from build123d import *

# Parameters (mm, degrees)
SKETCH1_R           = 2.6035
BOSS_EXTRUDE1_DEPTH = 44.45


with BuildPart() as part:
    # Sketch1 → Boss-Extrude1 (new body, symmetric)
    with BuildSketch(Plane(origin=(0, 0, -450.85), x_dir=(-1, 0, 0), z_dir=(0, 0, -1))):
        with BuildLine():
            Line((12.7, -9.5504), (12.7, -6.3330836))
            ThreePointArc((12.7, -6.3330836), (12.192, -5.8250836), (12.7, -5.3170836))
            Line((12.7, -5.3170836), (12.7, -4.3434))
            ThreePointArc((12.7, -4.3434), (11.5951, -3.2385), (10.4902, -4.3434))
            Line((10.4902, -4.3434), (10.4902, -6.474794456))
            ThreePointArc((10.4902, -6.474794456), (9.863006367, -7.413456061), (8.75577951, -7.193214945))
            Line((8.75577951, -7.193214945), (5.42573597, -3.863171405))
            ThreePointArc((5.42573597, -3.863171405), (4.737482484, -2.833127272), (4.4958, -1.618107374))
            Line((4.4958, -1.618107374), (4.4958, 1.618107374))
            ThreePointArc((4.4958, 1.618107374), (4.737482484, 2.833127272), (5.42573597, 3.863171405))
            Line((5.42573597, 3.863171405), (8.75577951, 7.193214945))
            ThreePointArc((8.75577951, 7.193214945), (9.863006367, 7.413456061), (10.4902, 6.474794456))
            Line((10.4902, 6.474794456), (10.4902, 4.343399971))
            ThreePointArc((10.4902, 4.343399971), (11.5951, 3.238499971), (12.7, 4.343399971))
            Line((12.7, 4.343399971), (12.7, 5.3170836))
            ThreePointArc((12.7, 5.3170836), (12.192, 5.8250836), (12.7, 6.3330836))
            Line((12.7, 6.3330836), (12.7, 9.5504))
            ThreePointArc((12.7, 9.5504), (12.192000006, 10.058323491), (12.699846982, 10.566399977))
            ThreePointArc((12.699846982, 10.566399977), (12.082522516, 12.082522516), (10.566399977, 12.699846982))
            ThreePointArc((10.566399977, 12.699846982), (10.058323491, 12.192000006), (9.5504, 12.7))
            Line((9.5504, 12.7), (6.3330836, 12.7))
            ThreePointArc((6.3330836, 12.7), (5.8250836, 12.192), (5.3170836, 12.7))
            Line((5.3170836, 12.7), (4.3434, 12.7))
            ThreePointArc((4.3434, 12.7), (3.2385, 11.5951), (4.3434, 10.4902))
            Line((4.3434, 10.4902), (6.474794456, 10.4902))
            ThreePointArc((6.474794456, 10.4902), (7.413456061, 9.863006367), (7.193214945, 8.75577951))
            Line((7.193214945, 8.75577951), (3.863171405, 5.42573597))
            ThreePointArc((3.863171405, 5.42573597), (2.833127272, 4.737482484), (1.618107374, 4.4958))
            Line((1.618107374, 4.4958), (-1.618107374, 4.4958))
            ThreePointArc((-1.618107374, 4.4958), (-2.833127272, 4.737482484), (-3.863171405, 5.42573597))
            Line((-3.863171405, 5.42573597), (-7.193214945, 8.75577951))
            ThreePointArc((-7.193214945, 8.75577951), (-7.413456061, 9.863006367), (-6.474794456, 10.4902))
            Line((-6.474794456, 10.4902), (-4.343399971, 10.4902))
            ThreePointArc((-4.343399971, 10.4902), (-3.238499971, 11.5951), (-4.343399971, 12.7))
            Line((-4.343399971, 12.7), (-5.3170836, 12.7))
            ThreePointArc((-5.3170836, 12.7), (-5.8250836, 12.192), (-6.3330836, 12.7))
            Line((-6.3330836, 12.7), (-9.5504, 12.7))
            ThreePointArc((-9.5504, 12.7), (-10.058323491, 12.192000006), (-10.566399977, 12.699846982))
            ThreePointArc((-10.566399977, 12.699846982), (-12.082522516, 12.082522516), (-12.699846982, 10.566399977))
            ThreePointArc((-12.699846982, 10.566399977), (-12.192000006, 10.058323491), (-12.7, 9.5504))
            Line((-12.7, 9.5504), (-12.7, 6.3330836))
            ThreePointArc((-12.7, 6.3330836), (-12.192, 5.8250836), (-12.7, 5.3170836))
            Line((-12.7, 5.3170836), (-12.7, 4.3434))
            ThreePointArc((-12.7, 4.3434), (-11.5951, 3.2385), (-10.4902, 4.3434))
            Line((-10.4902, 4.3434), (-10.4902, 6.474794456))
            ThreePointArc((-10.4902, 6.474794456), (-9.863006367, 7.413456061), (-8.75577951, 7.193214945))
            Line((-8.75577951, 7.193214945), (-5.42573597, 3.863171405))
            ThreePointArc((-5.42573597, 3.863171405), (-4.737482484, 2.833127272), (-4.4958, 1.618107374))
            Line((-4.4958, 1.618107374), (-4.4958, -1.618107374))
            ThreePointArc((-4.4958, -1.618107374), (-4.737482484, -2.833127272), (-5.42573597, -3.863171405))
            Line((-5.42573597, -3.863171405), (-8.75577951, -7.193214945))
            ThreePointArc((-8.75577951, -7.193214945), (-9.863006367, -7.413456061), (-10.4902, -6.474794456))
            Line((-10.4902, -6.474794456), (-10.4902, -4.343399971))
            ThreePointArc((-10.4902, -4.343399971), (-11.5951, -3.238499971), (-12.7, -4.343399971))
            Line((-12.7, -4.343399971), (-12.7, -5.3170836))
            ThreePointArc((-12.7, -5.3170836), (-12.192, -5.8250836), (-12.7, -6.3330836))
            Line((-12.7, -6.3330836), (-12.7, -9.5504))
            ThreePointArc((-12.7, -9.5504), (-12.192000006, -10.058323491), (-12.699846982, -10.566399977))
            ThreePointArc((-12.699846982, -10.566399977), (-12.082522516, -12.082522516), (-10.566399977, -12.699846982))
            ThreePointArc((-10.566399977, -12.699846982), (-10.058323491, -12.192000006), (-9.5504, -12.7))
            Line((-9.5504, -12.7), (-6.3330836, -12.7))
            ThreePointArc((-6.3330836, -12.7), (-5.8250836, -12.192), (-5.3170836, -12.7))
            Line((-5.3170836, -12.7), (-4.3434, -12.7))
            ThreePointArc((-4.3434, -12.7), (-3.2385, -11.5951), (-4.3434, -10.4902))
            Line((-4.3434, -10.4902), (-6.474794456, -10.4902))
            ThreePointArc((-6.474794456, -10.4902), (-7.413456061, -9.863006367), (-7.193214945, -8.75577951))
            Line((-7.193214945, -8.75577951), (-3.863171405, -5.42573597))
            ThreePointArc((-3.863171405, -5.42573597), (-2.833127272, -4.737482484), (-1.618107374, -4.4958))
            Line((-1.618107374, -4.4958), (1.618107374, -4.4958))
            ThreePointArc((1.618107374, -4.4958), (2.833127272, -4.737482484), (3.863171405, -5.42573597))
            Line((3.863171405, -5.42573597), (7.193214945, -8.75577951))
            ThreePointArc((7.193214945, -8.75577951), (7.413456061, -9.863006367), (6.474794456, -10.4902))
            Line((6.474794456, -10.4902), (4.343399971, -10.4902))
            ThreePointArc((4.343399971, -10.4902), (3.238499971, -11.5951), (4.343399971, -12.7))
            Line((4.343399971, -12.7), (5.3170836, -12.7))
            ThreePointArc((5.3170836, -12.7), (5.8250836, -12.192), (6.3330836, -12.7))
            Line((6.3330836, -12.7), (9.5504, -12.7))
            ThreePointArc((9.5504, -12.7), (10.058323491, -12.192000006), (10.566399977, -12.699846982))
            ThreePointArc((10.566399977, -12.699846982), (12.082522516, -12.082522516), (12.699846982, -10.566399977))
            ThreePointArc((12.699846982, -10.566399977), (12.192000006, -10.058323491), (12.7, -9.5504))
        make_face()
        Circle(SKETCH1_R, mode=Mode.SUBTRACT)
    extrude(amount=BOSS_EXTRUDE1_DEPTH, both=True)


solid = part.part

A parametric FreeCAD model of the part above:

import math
import FreeCAD as App
import Part
import Sketcher
Q = App.Units.Quantity

doc = App.newDocument("Part")
params = doc.addObject("Spreadsheet::Sheet", "Params")
for row, (alias, value) in enumerate([
    ("sketch1_radius", "0.02 in"),
    ("sketch1_radius2", "0.04 in"),
    ("sketch1_diameter", "0.205 in"),
    ("sketch1_radius3", "0.125 in"),
    ("sketch1_radius4", "0.083 in"),
    ("pad1_length", "3.5 in"),
], start=1):
    params.set(f"A{row}", alias)
    params.set(f"B{row}", "=" + value)
    params.setAlias(f"B{row}", alias)

body = doc.addObject("PartDesign::Body", "Body")

sketch1 = body.newObject("Sketcher::SketchObject", "Sketch")
sketch1.AttachmentSupport = (doc.getObject("XY_Plane"), [""])
sketch1.MapMode = "FlatFace"
sketch1.AttachmentOffset = App.Placement(App.Vector(0, 0, -17.75 * 25.4), App.Rotation())
sketch1.addGeometry(Part.LineSegment(App.Vector(-12.7, -9.5504, 0), App.Vector(-12.7, -6.333084, 0)), False)
sketch1.addGeometry(Part.ArcOfCircle(Part.Circle(App.Vector(-12.7, -5.825084, 0), App.Vector(0, 0, 1), 0.508), math.radians(-90), math.radians(90)), False)
sketch1.addGeometry(Part.LineSegment(App.Vector(-12.7, -5.317084, 0), App.Vector(-12.7, -4.3434, 0)), False)
sketch1.addGeometry(Part.ArcOfCircle(Part.Circle(App.Vector(-11.5951, -4.3434, 0), App.Vector(0, 0, 1), 1.1049), math.radians(0), math.radians(180)), False)
sketch1.addGeometry(Part.LineSegment(App.Vector(-10.4902, -4.3434, 0), App.Vector(-10.4902, -6.474794, 0)), False)
sketch1.addGeometry(Part.ArcOfCircle(Part.Circle(App.Vector(-9.4742, -6.474794, 0), App.Vector(0, 0, 1), 1.016), math.radians(180), math.radians(315)), False)
sketch1.addGeometry(Part.LineSegment(App.Vector(-8.75578, -7.193215, 0), App.Vector(-5.425736, -3.863171, 0)), False)
sketch1.addGeometry(Part.ArcOfCircle(Part.Circle(App.Vector(-7.6708, -1.618107, 0), App.Vector(0, 0, 1), 3.175), math.radians(-45), math.radians(0)), False)
sketch1.addGeometry(Part.LineSegment(App.Vector(-4.4958, -1.618107, 0), App.Vector(-4.4958, 1.618107, 0)), False)
sketch1.addGeometry(Part.ArcOfCircle(Part.Circle(App.Vector(-7.6708, 1.618107, 0), App.Vector(0, 0, 1), 3.175), math.radians(0), math.radians(45)), False)
sketch1.addGeometry(Part.LineSegment(App.Vector(-5.425736, 3.863171, 0), App.Vector(-8.75578, 7.193215, 0)), False)
sketch1.addGeometry(Part.ArcOfCircle(Part.Circle(App.Vector(-9.4742, 6.474794, 0), App.Vector(0, 0, 1), 1.016), math.radians(45), math.radians(180)), False)
sketch1.addGeometry(Part.LineSegment(App.Vector(-10.4902, 6.474794, 0), App.Vector(-10.4902, 4.3434, 0)), False)
sketch1.addGeometry(Part.ArcOfCircle(Part.Circle(App.Vector(-11.5951, 4.3434, 0), App.Vector(0, 0, 1), 1.1049), math.radians(180), math.radians(360)), False)
sketch1.addGeometry(Part.LineSegment(App.Vector(-12.7, 4.3434, 0), App.Vector(-12.7, 5.317084, 0)), False)
sketch1.addGeometry(Part.ArcOfCircle(Part.Circle(App.Vector(-12.7, 5.825084, 0), App.Vector(0, 0, 1), 0.508), math.radians(-90), math.radians(90)), False)
sketch1.addGeometry(Part.LineSegment(App.Vector(-12.7, 6.333084, 0), App.Vector(-12.7, 9.5504, 0)), False)
sketch1.addGeometry(Part.ArcOfCircle(Part.Circle(App.Vector(-12.7, 10.0584, 0), App.Vector(0, 0, 1), 0.508), math.radians(-90), math.radians(89.982742)), False)
sketch1.addGeometry(Part.ArcOfCircle(Part.Circle(App.Vector(-10.5918, 10.5918, 0), App.Vector(0, 0, 1), 2.1082), math.radians(89.309672), math.radians(180.690328)), False)
sketch1.addGeometry(Part.ArcOfCircle(Part.Circle(App.Vector(-10.0584, 12.7, 0), App.Vector(0, 0, 1), 0.508), math.radians(-179.982742), math.radians(0)), False)
sketch1.addGeometry(Part.LineSegment(App.Vector(-9.5504, 12.7, 0), App.Vector(-6.333084, 12.7, 0)), False)
sketch1.addGeometry(Part.ArcOfCircle(Part.Circle(App.Vector(-5.825084, 12.7, 0), App.Vector(0, 0, 1), 0.508), math.radians(180), math.radians(360)), False)
sketch1.addGeometry(Part.LineSegment(App.Vector(-5.317084, 12.7, 0), App.Vector(-4.3434, 12.7, 0)), False)
sketch1.addGeometry(Part.ArcOfCircle(Part.Circle(App.Vector(-4.3434, 11.5951, 0), App.Vector(0, 0, 1), 1.1049), math.radians(-90), math.radians(90)), False)
sketch1.addGeometry(Part.LineSegment(App.Vector(-4.3434, 10.4902, 0), App.Vector(-6.474794, 10.4902, 0)), False)
sketch1.addGeometry(Part.ArcOfCircle(Part.Circle(App.Vector(-6.474794, 9.4742, 0), App.Vector(0, 0, 1), 1.016), math.radians(90), math.radians(225)), False)
sketch1.addGeometry(Part.LineSegment(App.Vector(-7.193215, 8.75578, 0), App.Vector(-3.863171, 5.425736, 0)), False)
sketch1.addGeometry(Part.ArcOfCircle(Part.Circle(App.Vector(-1.618107, 7.6708, 0), App.Vector(0, 0, 1), 3.175), math.radians(-135), math.radians(-90)), False)
sketch1.addGeometry(Part.LineSegment(App.Vector(-1.618107, 4.4958, 0), App.Vector(1.618107, 4.4958, 0)), False)
sketch1.addGeometry(Part.ArcOfCircle(Part.Circle(App.Vector(1.618107, 7.6708, 0), App.Vector(0, 0, 1), 3.175), math.radians(-90), math.radians(-45)), False)
sketch1.addGeometry(Part.LineSegment(App.Vector(3.863171, 5.425736, 0), App.Vector(7.193215, 8.75578, 0)), False)
sketch1.addGeometry(Part.ArcOfCircle(Part.Circle(App.Vector(6.474794, 9.4742, 0), App.Vector(0, 0, 1), 1.016), math.radians(-45), math.radians(90)), False)
sketch1.addGeometry(Part.LineSegment(App.Vector(6.474794, 10.4902, 0), App.Vector(4.3434, 10.4902, 0)), False)
sketch1.addGeometry(Part.ArcOfCircle(Part.Circle(App.Vector(4.3434, 11.5951, 0), App.Vector(0, 0, 1), 1.1049), math.radians(90), math.radians(270)), False)
sketch1.addGeometry(Part.LineSegment(App.Vector(4.3434, 12.7, 0), App.Vector(5.317084, 12.7, 0)), False)
sketch1.addGeometry(Part.ArcOfCircle(Part.Circle(App.Vector(5.825084, 12.7, 0), App.Vector(0, 0, 1), 0.508), math.radians(180), math.radians(360)), False)
sketch1.addGeometry(Part.LineSegment(App.Vector(6.333084, 12.7, 0), App.Vector(9.5504, 12.7, 0)), False)
sketch1.addGeometry(Part.ArcOfCircle(Part.Circle(App.Vector(10.0584, 12.7, 0), App.Vector(0, 0, 1), 0.508), math.radians(180), math.radians(359.982742)), False)
sketch1.addGeometry(Part.ArcOfCircle(Part.Circle(App.Vector(10.5918, 10.5918, 0), App.Vector(0, 0, 1), 2.1082), math.radians(-0.690328), math.radians(90.690328)), False)
sketch1.addGeometry(Part.ArcOfCircle(Part.Circle(App.Vector(12.7, 10.0584, 0), App.Vector(0, 0, 1), 0.508), math.radians(90.017258), math.radians(270)), False)
sketch1.addGeometry(Part.LineSegment(App.Vector(12.7, 9.5504, 0), App.Vector(12.7, 6.333084, 0)), False)
sketch1.addGeometry(Part.ArcOfCircle(Part.Circle(App.Vector(12.7, 5.825084, 0), App.Vector(0, 0, 1), 0.508), math.radians(90), math.radians(270)), False)
sketch1.addGeometry(Part.LineSegment(App.Vector(12.7, 5.317084, 0), App.Vector(12.7, 4.3434, 0)), False)
sketch1.addGeometry(Part.ArcOfCircle(Part.Circle(App.Vector(11.5951, 4.3434, 0), App.Vector(0, 0, 1), 1.1049), math.radians(180), math.radians(360)), False)
sketch1.addGeometry(Part.LineSegment(App.Vector(10.4902, 4.3434, 0), App.Vector(10.4902, 6.474794, 0)), False)
sketch1.addGeometry(Part.ArcOfCircle(Part.Circle(App.Vector(9.4742, 6.474794, 0), App.Vector(0, 0, 1), 1.016), math.radians(0), math.radians(135)), False)
sketch1.addGeometry(Part.LineSegment(App.Vector(8.75578, 7.193215, 0), App.Vector(5.425736, 3.863171, 0)), False)
sketch1.addGeometry(Part.ArcOfCircle(Part.Circle(App.Vector(7.6708, 1.618107, 0), App.Vector(0, 0, 1), 3.175), math.radians(135), math.radians(180)), False)
sketch1.addGeometry(Part.LineSegment(App.Vector(4.4958, 1.618107, 0), App.Vector(4.4958, -1.618107, 0)), False)
sketch1.addGeometry(Part.ArcOfCircle(Part.Circle(App.Vector(7.6708, -1.618107, 0), App.Vector(0, 0, 1), 3.175), math.radians(180), math.radians(225)), False)
sketch1.addGeometry(Part.LineSegment(App.Vector(5.425736, -3.863171, 0), App.Vector(8.75578, -7.193215, 0)), False)
sketch1.addGeometry(Part.ArcOfCircle(Part.Circle(App.Vector(9.4742, -6.474794, 0), App.Vector(0, 0, 1), 1.016), math.radians(-135), math.radians(0)), False)
sketch1.addGeometry(Part.LineSegment(App.Vector(10.4902, -6.474794, 0), App.Vector(10.4902, -4.3434, 0)), False)
sketch1.addGeometry(Part.ArcOfCircle(Part.Circle(App.Vector(11.5951, -4.3434, 0), App.Vector(0, 0, 1), 1.1049), math.radians(0), math.radians(180)), False)
sketch1.addGeometry(Part.LineSegment(App.Vector(12.7, -4.3434, 0), App.Vector(12.7, -5.317084, 0)), False)
sketch1.addGeometry(Part.ArcOfCircle(Part.Circle(App.Vector(12.7, -5.825084, 0), App.Vector(0, 0, 1), 0.508), math.radians(90), math.radians(270)), False)
sketch1.addGeometry(Part.LineSegment(App.Vector(12.7, -6.333084, 0), App.Vector(12.7, -9.5504, 0)), False)
sketch1.addGeometry(Part.ArcOfCircle(Part.Circle(App.Vector(12.7, -10.0584, 0), App.Vector(0, 0, 1), 0.508), math.radians(90), math.radians(269.982742)), False)
sketch1.addGeometry(Part.ArcOfCircle(Part.Circle(App.Vector(10.5918, -10.5918, 0), App.Vector(0, 0, 1), 2.1082), math.radians(-90.690328), math.radians(0.690328)), False)
sketch1.addGeometry(Part.ArcOfCircle(Part.Circle(App.Vector(10.0584, -12.7, 0), App.Vector(0, 0, 1), 0.508), math.radians(0.017258), math.radians(180)), False)
sketch1.addGeometry(Part.LineSegment(App.Vector(9.5504, -12.7, 0), App.Vector(6.333084, -12.7, 0)), False)
sketch1.addGeometry(Part.ArcOfCircle(Part.Circle(App.Vector(5.825084, -12.7, 0), App.Vector(0, 0, 1), 0.508), math.radians(0), math.radians(180)), False)
sketch1.addGeometry(Part.LineSegment(App.Vector(5.317084, -12.7, 0), App.Vector(4.3434, -12.7, 0)), False)
sketch1.addGeometry(Part.ArcOfCircle(Part.Circle(App.Vector(4.3434, -11.5951, 0), App.Vector(0, 0, 1), 1.1049), math.radians(90), math.radians(270)), False)
sketch1.addGeometry(Part.LineSegment(App.Vector(4.3434, -10.4902, 0), App.Vector(6.474794, -10.4902, 0)), False)
sketch1.addGeometry(Part.ArcOfCircle(Part.Circle(App.Vector(6.474794, -9.4742, 0), App.Vector(0, 0, 1), 1.016), math.radians(-90), math.radians(45)), False)
sketch1.addGeometry(Part.LineSegment(App.Vector(7.193215, -8.75578, 0), App.Vector(3.863171, -5.425736, 0)), False)
sketch1.addGeometry(Part.ArcOfCircle(Part.Circle(App.Vector(1.618107, -7.6708, 0), App.Vector(0, 0, 1), 3.175), math.radians(45), math.radians(90)), False)
sketch1.addGeometry(Part.LineSegment(App.Vector(1.618107, -4.4958, 0), App.Vector(-1.618107, -4.4958, 0)), False)
sketch1.addGeometry(Part.ArcOfCircle(Part.Circle(App.Vector(-1.618107, -7.6708, 0), App.Vector(0, 0, 1), 3.175), math.radians(90), math.radians(135)), False)
sketch1.addGeometry(Part.LineSegment(App.Vector(-3.863171, -5.425736, 0), App.Vector(-7.193215, -8.75578, 0)), False)
sketch1.addGeometry(Part.ArcOfCircle(Part.Circle(App.Vector(-6.474794, -9.4742, 0), App.Vector(0, 0, 1), 1.016), math.radians(135), math.radians(270)), False)
sketch1.addGeometry(Part.LineSegment(App.Vector(-6.474794, -10.4902, 0), App.Vector(-4.3434, -10.4902, 0)), False)
sketch1.addGeometry(Part.ArcOfCircle(Part.Circle(App.Vector(-4.3434, -11.5951, 0), App.Vector(0, 0, 1), 1.1049), math.radians(-90), math.radians(90)), False)
sketch1.addGeometry(Part.LineSegment(App.Vector(-4.3434, -12.7, 0), App.Vector(-5.317084, -12.7, 0)), False)
sketch1.addGeometry(Part.ArcOfCircle(Part.Circle(App.Vector(-5.825084, -12.7, 0), App.Vector(0, 0, 1), 0.508), math.radians(0), math.radians(180)), False)
sketch1.addGeometry(Part.LineSegment(App.Vector(-6.333084, -12.7, 0), App.Vector(-9.5504, -12.7, 0)), False)
sketch1.addGeometry(Part.ArcOfCircle(Part.Circle(App.Vector(-10.0584, -12.7, 0), App.Vector(0, 0, 1), 0.508), math.radians(0), math.radians(179.982742)), False)
sketch1.addGeometry(Part.ArcOfCircle(Part.Circle(App.Vector(-10.5918, -10.5918, 0), App.Vector(0, 0, 1), 2.1082), math.radians(179.309672), math.radians(270.690328)), False)
sketch1.addGeometry(Part.ArcOfCircle(Part.Circle(App.Vector(-12.7, -10.0584, 0), App.Vector(0, 0, 1), 0.508), math.radians(-89.982742), math.radians(90)), False)
sketch1.addGeometry(Part.Circle(App.Vector(0, 0, 0), App.Vector(0, 0, 1), 2.6035), False)
sketch1.addConstraint(Sketcher.Constraint("Coincident", 0, 2, 1, 1))
sketch1.addConstraint(Sketcher.Constraint("Coincident", 1, 2, 2, 1))
sketch1.addConstraint(Sketcher.Constraint("Tangent", 2, 2, 3, 2))
sketch1.addConstraint(Sketcher.Constraint("Tangent", 3, 1, 4, 1))
sketch1.addConstraint(Sketcher.Constraint("Tangent", 4, 2, 5, 1))
sketch1.addConstraint(Sketcher.Constraint("Tangent", 5, 2, 6, 1))
sketch1.addConstraint(Sketcher.Constraint("Tangent", 6, 2, 7, 1))
sketch1.addConstraint(Sketcher.Constraint("Tangent", 7, 2, 8, 1))
sketch1.addConstraint(Sketcher.Constraint("Tangent", 8, 2, 9, 1))
sketch1.addConstraint(Sketcher.Constraint("Tangent", 9, 2, 10, 1))
sketch1.addConstraint(Sketcher.Constraint("Tangent", 10, 2, 11, 1))
sketch1.addConstraint(Sketcher.Constraint("Tangent", 11, 2, 12, 1))
sketch1.addConstraint(Sketcher.Constraint("Tangent", 12, 2, 13, 2))
sketch1.addConstraint(Sketcher.Constraint("Tangent", 13, 1, 14, 1))
sketch1.addConstraint(Sketcher.Constraint("Coincident", 14, 2, 15, 1))
sketch1.addConstraint(Sketcher.Constraint("Coincident", 15, 2, 16, 1))
sketch1.addConstraint(Sketcher.Constraint("Coincident", 16, 2, 17, 1))
sketch1.addConstraint(Sketcher.Constraint("Coincident", 17, 2, 18, 2))
sketch1.addConstraint(Sketcher.Constraint("Coincident", 18, 1, 19, 1))
sketch1.addConstraint(Sketcher.Constraint("Coincident", 19, 2, 20, 1))
sketch1.addConstraint(Sketcher.Constraint("Coincident", 20, 2, 21, 1))
sketch1.addConstraint(Sketcher.Constraint("Coincident", 21, 2, 22, 1))
sketch1.addConstraint(Sketcher.Constraint("Tangent", 22, 2, 23, 2))
sketch1.addConstraint(Sketcher.Constraint("Tangent", 23, 1, 24, 1))
sketch1.addConstraint(Sketcher.Constraint("Tangent", 24, 2, 25, 1))
sketch1.addConstraint(Sketcher.Constraint("Tangent", 25, 2, 26, 1))
sketch1.addConstraint(Sketcher.Constraint("Tangent", 26, 2, 27, 1))
sketch1.addConstraint(Sketcher.Constraint("Tangent", 27, 2, 28, 1))
sketch1.addConstraint(Sketcher.Constraint("Tangent", 28, 2, 29, 1))
sketch1.addConstraint(Sketcher.Constraint("Tangent", 29, 2, 30, 1))
sketch1.addConstraint(Sketcher.Constraint("Tangent", 30, 2, 31, 1))
sketch1.addConstraint(Sketcher.Constraint("Tangent", 31, 2, 32, 1))
sketch1.addConstraint(Sketcher.Constraint("Tangent", 32, 2, 33, 2))
sketch1.addConstraint(Sketcher.Constraint("Tangent", 33, 1, 34, 1))
sketch1.addConstraint(Sketcher.Constraint("Coincident", 34, 2, 35, 1))
sketch1.addConstraint(Sketcher.Constraint("Coincident", 35, 2, 36, 1))
sketch1.addConstraint(Sketcher.Constraint("Coincident", 36, 2, 37, 1))
sketch1.addConstraint(Sketcher.Constraint("Coincident", 37, 2, 38, 2))
sketch1.addConstraint(Sketcher.Constraint("Coincident", 38, 1, 39, 1))
sketch1.addConstraint(Sketcher.Constraint("Coincident", 39, 2, 40, 1))
sketch1.addConstraint(Sketcher.Constraint("Coincident", 40, 2, 41, 1))
sketch1.addConstraint(Sketcher.Constraint("Coincident", 41, 2, 42, 1))
sketch1.addConstraint(Sketcher.Constraint("Tangent", 42, 2, 43, 2))
sketch1.addConstraint(Sketcher.Constraint("Tangent", 43, 1, 44, 1))
sketch1.addConstraint(Sketcher.Constraint("Tangent", 44, 2, 45, 1))
sketch1.addConstraint(Sketcher.Constraint("Tangent", 45, 2, 46, 1))
sketch1.addConstraint(Sketcher.Constraint("Tangent", 46, 2, 47, 1))
sketch1.addConstraint(Sketcher.Constraint("Tangent", 47, 2, 48, 1))
sketch1.addConstraint(Sketcher.Constraint("Tangent", 48, 2, 49, 1))
sketch1.addConstraint(Sketcher.Constraint("Tangent", 49, 2, 50, 1))
sketch1.addConstraint(Sketcher.Constraint("Tangent", 50, 2, 51, 1))
sketch1.addConstraint(Sketcher.Constraint("Tangent", 51, 2, 52, 1))
sketch1.addConstraint(Sketcher.Constraint("Tangent", 52, 2, 53, 2))
sketch1.addConstraint(Sketcher.Constraint("Tangent", 53, 1, 54, 1))
sketch1.addConstraint(Sketcher.Constraint("Coincident", 54, 2, 55, 1))
sketch1.addConstraint(Sketcher.Constraint("Coincident", 55, 2, 56, 1))
sketch1.addConstraint(Sketcher.Constraint("Coincident", 56, 2, 57, 1))
sketch1.addConstraint(Sketcher.Constraint("Coincident", 57, 2, 58, 2))
sketch1.addConstraint(Sketcher.Constraint("Coincident", 58, 1, 59, 1))
sketch1.addConstraint(Sketcher.Constraint("Coincident", 59, 2, 60, 1))
sketch1.addConstraint(Sketcher.Constraint("Coincident", 60, 2, 61, 1))
sketch1.addConstraint(Sketcher.Constraint("Coincident", 61, 2, 62, 1))
sketch1.addConstraint(Sketcher.Constraint("Tangent", 62, 2, 63, 2))
sketch1.addConstraint(Sketcher.Constraint("Tangent", 63, 1, 64, 1))
sketch1.addConstraint(Sketcher.Constraint("Tangent", 64, 2, 65, 1))
sketch1.addConstraint(Sketcher.Constraint("Tangent", 65, 2, 66, 1))
sketch1.addConstraint(Sketcher.Constraint("Tangent", 66, 2, 67, 1))
sketch1.addConstraint(Sketcher.Constraint("Tangent", 67, 2, 68, 1))
sketch1.addConstraint(Sketcher.Constraint("Tangent", 68, 2, 69, 1))
sketch1.addConstraint(Sketcher.Constraint("Tangent", 69, 2, 70, 1))
sketch1.addConstraint(Sketcher.Constraint("Tangent", 70, 2, 71, 1))
sketch1.addConstraint(Sketcher.Constraint("Tangent", 71, 2, 72, 1))
sketch1.addConstraint(Sketcher.Constraint("Tangent", 72, 2, 73, 2))
sketch1.addConstraint(Sketcher.Constraint("Tangent", 73, 1, 74, 1))
sketch1.addConstraint(Sketcher.Constraint("Coincident", 74, 2, 75, 1))
sketch1.addConstraint(Sketcher.Constraint("Coincident", 75, 2, 76, 1))
sketch1.addConstraint(Sketcher.Constraint("Coincident", 76, 2, 77, 1))
sketch1.addConstraint(Sketcher.Constraint("Coincident", 77, 2, 78, 2))
sketch1.addConstraint(Sketcher.Constraint("Coincident", 78, 1, 79, 1))
sketch1.addConstraint(Sketcher.Constraint("Coincident", 79, 2, 0, 1))
sketch1.addConstraint(Sketcher.Constraint("Vertical", 0))
sketch1.addConstraint(Sketcher.Constraint("Vertical", 2))
sketch1.addConstraint(Sketcher.Constraint("Vertical", 4))
sketch1.addConstraint(Sketcher.Constraint("Vertical", 8))
sketch1.addConstraint(Sketcher.Constraint("Vertical", 12))
sketch1.addConstraint(Sketcher.Constraint("Vertical", 14))
sketch1.addConstraint(Sketcher.Constraint("Vertical", 16))
sketch1.addConstraint(Sketcher.Constraint("Horizontal", 20))
sketch1.addConstraint(Sketcher.Constraint("Horizontal", 22))
sketch1.addConstraint(Sketcher.Constraint("Horizontal", 24))
sketch1.addConstraint(Sketcher.Constraint("Horizontal", 28))
sketch1.addConstraint(Sketcher.Constraint("Horizontal", 32))
sketch1.addConstraint(Sketcher.Constraint("Horizontal", 34))
sketch1.addConstraint(Sketcher.Constraint("Horizontal", 36))
sketch1.addConstraint(Sketcher.Constraint("Vertical", 40))
sketch1.addConstraint(Sketcher.Constraint("Vertical", 42))
sketch1.addConstraint(Sketcher.Constraint("Vertical", 44))
sketch1.addConstraint(Sketcher.Constraint("Vertical", 48))
sketch1.addConstraint(Sketcher.Constraint("Vertical", 52))
sketch1.addConstraint(Sketcher.Constraint("Vertical", 54))
sketch1.addConstraint(Sketcher.Constraint("Vertical", 56))
sketch1.addConstraint(Sketcher.Constraint("Horizontal", 60))
sketch1.addConstraint(Sketcher.Constraint("Horizontal", 62))
sketch1.addConstraint(Sketcher.Constraint("Horizontal", 64))
sketch1.addConstraint(Sketcher.Constraint("Horizontal", 68))
sketch1.addConstraint(Sketcher.Constraint("Horizontal", 72))
sketch1.addConstraint(Sketcher.Constraint("Horizontal", 74))
sketch1.addConstraint(Sketcher.Constraint("Horizontal", 76))
sketch1.addConstraint(Sketcher.Constraint("Coincident", 80, 3, -1, 1))
sketch1.addConstraint(Sketcher.Constraint("Equal", 7, 9))
sketch1.addConstraint(Sketcher.Constraint("Equal", 5, 11))
sketch1.addConstraint(Sketcher.Constraint("Equal", 3, 13))
sketch1.addConstraint(Sketcher.Constraint("Equal", 1, 15))
sketch1.addConstraint(Sketcher.Constraint("Equal", 15, 17))
sketch1.addConstraint(Sketcher.Constraint("Equal", 17, 19))
sketch1.addConstraint(Sketcher.Constraint("Equal", 19, 21))
sketch1.addConstraint(Sketcher.Constraint("Equal", 13, 23))
sketch1.addConstraint(Sketcher.Constraint("Equal", 11, 25))
sketch1.addConstraint(Sketcher.Constraint("Equal", 9, 27))
sketch1.addConstraint(Sketcher.Constraint("Equal", 27, 29))
sketch1.addConstraint(Sketcher.Constraint("Equal", 25, 31))
sketch1.addConstraint(Sketcher.Constraint("Equal", 23, 33))
sketch1.addConstraint(Sketcher.Constraint("Equal", 21, 35))
sketch1.addConstraint(Sketcher.Constraint("Equal", 35, 37))
sketch1.addConstraint(Sketcher.Constraint("Equal", 18, 38))
sketch1.addConstraint(Sketcher.Constraint("Equal", 37, 39))
sketch1.addConstraint(Sketcher.Constraint("Equal", 39, 41))
sketch1.addConstraint(Sketcher.Constraint("Equal", 33, 43))
sketch1.addConstraint(Sketcher.Constraint("Equal", 31, 45))
sketch1.addConstraint(Sketcher.Constraint("Equal", 29, 47))
sketch1.addConstraint(Sketcher.Constraint("Equal", 47, 49))
sketch1.addConstraint(Sketcher.Constraint("Equal", 45, 51))
sketch1.addConstraint(Sketcher.Constraint("Equal", 43, 53))
sketch1.addConstraint(Sketcher.Constraint("Equal", 41, 55))
sketch1.addConstraint(Sketcher.Constraint("Equal", 55, 57))
sketch1.addConstraint(Sketcher.Constraint("Equal", 38, 58))
sketch1.addConstraint(Sketcher.Constraint("Equal", 57, 59))
sketch1.addConstraint(Sketcher.Constraint("Equal", 59, 61))
sketch1.addConstraint(Sketcher.Constraint("Equal", 53, 63))
sketch1.addConstraint(Sketcher.Constraint("Equal", 51, 65))
sketch1.addConstraint(Sketcher.Constraint("Equal", 49, 67))
sketch1.addConstraint(Sketcher.Constraint("Equal", 67, 69))
sketch1.addConstraint(Sketcher.Constraint("Equal", 65, 71))
sketch1.addConstraint(Sketcher.Constraint("Equal", 63, 73))
sketch1.addConstraint(Sketcher.Constraint("Equal", 61, 75))
sketch1.addConstraint(Sketcher.Constraint("Equal", 75, 77))
sketch1.addConstraint(Sketcher.Constraint("Equal", 58, 78))
sketch1.addConstraint(Sketcher.Constraint("Equal", 77, 79))
sketch1.addConstraint(Sketcher.Constraint("Symmetric", 1, 3, 41, 3, -1, 1))
sketch1.addConstraint(Sketcher.Constraint("Symmetric", 3, 3, 43, 3, -1, 1))
sketch1.addConstraint(Sketcher.Constraint("Symmetric", 7, 3, 47, 3, -1, 1))
sketch1.addConstraint(Sketcher.Constraint("Symmetric", 11, 3, 51, 3, -1, 1))
sketch1.addConstraint(Sketcher.Constraint("Symmetric", 15, 3, 55, 3, -1, 1))
sketch1.addConstraint(Sketcher.Constraint("Symmetric", 17, 3, 57, 3, -1, 1))
sketch1.addConstraint(Sketcher.Constraint("Symmetric", 18, 3, 58, 3, -1, 1))
sketch1.addConstraint(Sketcher.Constraint("Symmetric", 19, 3, 59, 3, -1, 1))
sketch1.addConstraint(Sketcher.Constraint("Symmetric", 21, 3, 61, 3, -1, 1))
sketch1.addConstraint(Sketcher.Constraint("Symmetric", 23, 3, 63, 3, -1, 1))
sketch1.addConstraint(Sketcher.Constraint("Symmetric", 27, 3, 67, 3, -1, 1))
sketch1.addConstraint(Sketcher.Constraint("Symmetric", 31, 3, 71, 3, -1, 1))
sketch1.addConstraint(Sketcher.Constraint("Symmetric", 35, 3, 75, 3, -1, 1))
sketch1.addConstraint(Sketcher.Constraint("Symmetric", 37, 3, 77, 3, -1, 1))
sketch1.addConstraint(Sketcher.Constraint("Symmetric", 38, 3, 78, 3, -1, 1))
sketch1.addConstraint(Sketcher.Constraint("Symmetric", 39, 3, 79, 3, -1, 1))
sketch1.addConstraint(Sketcher.Constraint("Symmetric", 25, 3, 31, 3, -2))
sketch1.addConstraint(Sketcher.Constraint("Symmetric", 21, 3, 35, 3, -2))
sketch1.addConstraint(Sketcher.Constraint("Symmetric", 19, 3, 37, 3, -2))
sketch1.addConstraint(Sketcher.Constraint("Symmetric", 18, 3, 38, 3, -2))
sketch1.addConstraint(Sketcher.Constraint("Symmetric", 17, 3, 39, 3, -2))
sketch1.addConstraint(Sketcher.Constraint("Symmetric", 15, 3, 41, 3, -2))
sketch1.addConstraint(Sketcher.Constraint("Symmetric", 13, 3, 43, 3, -2))
sketch1.addConstraint(Sketcher.Constraint("Symmetric", 10, 2, 45, 2, -2))
sketch1.addConstraint(Sketcher.Constraint("Symmetric", 6, 2, 49, 2, -2))
sketch1.addConstraint(Sketcher.Constraint("Symmetric", 66, 2, 69, 2, -2))
sketch1.addConstraint(Sketcher.Constraint("Perpendicular", 6, 10))
sketch1.addConstraint(Sketcher.Constraint("Parallel", 10, 26))
sketch1.addConstraint(Sketcher.Constraint("Perpendicular", 26, 30))
sketch1.addConstraint(Sketcher.Constraint("Horizontal", 19, 3, 21, 3))
sketch1.addConstraint(Sketcher.Constraint("Horizontal", 3, 3, 53, 3))
sketch1.addConstraint(Sketcher.Constraint("Horizontal", 37, 3, 19, 2))
sketch1.addConstraint(Sketcher.Constraint("Horizontal", 20, 2, 21, 2))
sketch1.addConstraint(Sketcher.Constraint("Horizontal", 34, 2, 35, 2))
sketch1.addConstraint(Sketcher.Constraint("Horizontal", 77, 3, 59, 2))
sketch1.addConstraint(Sketcher.Constraint("Horizontal", 74, 2, 75, 2))
sketch1.addConstraint(Sketcher.Constraint("Vertical", 15, 3, 17, 3))
sketch1.addConstraint(Sketcher.Constraint("Vertical", 33, 3, 63, 3))
sketch1.addConstraint(Sketcher.Constraint("Vertical", 23, 3, 73, 3))
sketch1.addConstraint(Sketcher.Constraint("Vertical", 79, 3, 0, 2))
sketch1.addConstraint(Sketcher.Constraint("Vertical", 0, 2, 1, 2))
sketch1.addConstraint(Sketcher.Constraint("Vertical", 14, 2, 15, 2))
sketch1.addConstraint(Sketcher.Constraint("Vertical", 57, 3, 39, 2))
sketch1.addConstraint(Sketcher.Constraint("Vertical", 54, 2, 55, 2))
sketch1.addConstraint(Sketcher.Constraint("Equal", 76, 0))
sketch1.addConstraint(Sketcher.Constraint("Equal", 74, 2))
sketch1.addConstraint(Sketcher.Constraint("Equal", 72, 4))
sketch1.addConstraint(Sketcher.Constraint("Equal", 68, 8))
sketch1.addConstraint(Sketcher.Constraint("Equal", 10, 26))
sketch1.addConstraint(Sketcher.Constraint("Radius", 1, Q("0.02 in")))
sketch1.addConstraint(Sketcher.Constraint("Radius", 5, Q("0.04 in")))
sketch1.addConstraint(Sketcher.Constraint("Diameter", 80, Q("0.205 in")))
sketch1.addConstraint(Sketcher.Constraint("Radius", 7, Q("0.125 in")))
sketch1.addConstraint(Sketcher.Constraint("Radius", 18, Q("0.083 in")))
sketch1.addConstraint(Sketcher.Constraint("DistanceX", 1, 3, -1, 1, Q("0.5 in")))
sketch1.addConstraint(Sketcher.Constraint("DistanceY", -1, 1, 19, 3, Q("0.5 in")))
sketch1.addConstraint(Sketcher.Constraint("Radius", 3, Q("0.0435 in")))
sketch1.addConstraint(Sketcher.Constraint("DistanceY", 3, 3, -1, 1, Q("0.171 in")))
sketch1.addConstraint(Sketcher.Constraint("DistanceX", 7, 3, -1, 1, Q("0.302 in")))
sketch1.addConstraint(Sketcher.Constraint("DistanceY", -1, 1, 17, 3, Q("0.396 in")))
sketch1.addConstraint(Sketcher.Constraint("DistanceX", 18, 3, -1, 1, Q("0.417 in")))
sketch1.addConstraint(Sketcher.Constraint("DistanceY", -1, 1, 18, 3, Q("0.417 in")))
sketch1.addConstraint(Sketcher.Constraint("DistanceX", 20, 1, 20, 2, Q("3.217316 mm")))
sketch1.addConstraint(Sketcher.Constraint("DistanceX", 24, 2, 24, 1, Q("2.131394 mm")))
sketch1.setExpression("Constraints[197]", "Params.sketch1_radius")
sketch1.setExpression("Constraints[198]", "Params.sketch1_radius2")
sketch1.setExpression("Constraints[199]", "Params.sketch1_diameter")
sketch1.setExpression("Constraints[200]", "Params.sketch1_radius3")
sketch1.setExpression("Constraints[201]", "Params.sketch1_radius4")
pad1 = body.newObject("PartDesign::Pad", "Pad")
pad1.Profile = sketch1
pad1.setExpression("Length", "Params.pad1_length")
pad1.Midplane = True

doc.recompute()
